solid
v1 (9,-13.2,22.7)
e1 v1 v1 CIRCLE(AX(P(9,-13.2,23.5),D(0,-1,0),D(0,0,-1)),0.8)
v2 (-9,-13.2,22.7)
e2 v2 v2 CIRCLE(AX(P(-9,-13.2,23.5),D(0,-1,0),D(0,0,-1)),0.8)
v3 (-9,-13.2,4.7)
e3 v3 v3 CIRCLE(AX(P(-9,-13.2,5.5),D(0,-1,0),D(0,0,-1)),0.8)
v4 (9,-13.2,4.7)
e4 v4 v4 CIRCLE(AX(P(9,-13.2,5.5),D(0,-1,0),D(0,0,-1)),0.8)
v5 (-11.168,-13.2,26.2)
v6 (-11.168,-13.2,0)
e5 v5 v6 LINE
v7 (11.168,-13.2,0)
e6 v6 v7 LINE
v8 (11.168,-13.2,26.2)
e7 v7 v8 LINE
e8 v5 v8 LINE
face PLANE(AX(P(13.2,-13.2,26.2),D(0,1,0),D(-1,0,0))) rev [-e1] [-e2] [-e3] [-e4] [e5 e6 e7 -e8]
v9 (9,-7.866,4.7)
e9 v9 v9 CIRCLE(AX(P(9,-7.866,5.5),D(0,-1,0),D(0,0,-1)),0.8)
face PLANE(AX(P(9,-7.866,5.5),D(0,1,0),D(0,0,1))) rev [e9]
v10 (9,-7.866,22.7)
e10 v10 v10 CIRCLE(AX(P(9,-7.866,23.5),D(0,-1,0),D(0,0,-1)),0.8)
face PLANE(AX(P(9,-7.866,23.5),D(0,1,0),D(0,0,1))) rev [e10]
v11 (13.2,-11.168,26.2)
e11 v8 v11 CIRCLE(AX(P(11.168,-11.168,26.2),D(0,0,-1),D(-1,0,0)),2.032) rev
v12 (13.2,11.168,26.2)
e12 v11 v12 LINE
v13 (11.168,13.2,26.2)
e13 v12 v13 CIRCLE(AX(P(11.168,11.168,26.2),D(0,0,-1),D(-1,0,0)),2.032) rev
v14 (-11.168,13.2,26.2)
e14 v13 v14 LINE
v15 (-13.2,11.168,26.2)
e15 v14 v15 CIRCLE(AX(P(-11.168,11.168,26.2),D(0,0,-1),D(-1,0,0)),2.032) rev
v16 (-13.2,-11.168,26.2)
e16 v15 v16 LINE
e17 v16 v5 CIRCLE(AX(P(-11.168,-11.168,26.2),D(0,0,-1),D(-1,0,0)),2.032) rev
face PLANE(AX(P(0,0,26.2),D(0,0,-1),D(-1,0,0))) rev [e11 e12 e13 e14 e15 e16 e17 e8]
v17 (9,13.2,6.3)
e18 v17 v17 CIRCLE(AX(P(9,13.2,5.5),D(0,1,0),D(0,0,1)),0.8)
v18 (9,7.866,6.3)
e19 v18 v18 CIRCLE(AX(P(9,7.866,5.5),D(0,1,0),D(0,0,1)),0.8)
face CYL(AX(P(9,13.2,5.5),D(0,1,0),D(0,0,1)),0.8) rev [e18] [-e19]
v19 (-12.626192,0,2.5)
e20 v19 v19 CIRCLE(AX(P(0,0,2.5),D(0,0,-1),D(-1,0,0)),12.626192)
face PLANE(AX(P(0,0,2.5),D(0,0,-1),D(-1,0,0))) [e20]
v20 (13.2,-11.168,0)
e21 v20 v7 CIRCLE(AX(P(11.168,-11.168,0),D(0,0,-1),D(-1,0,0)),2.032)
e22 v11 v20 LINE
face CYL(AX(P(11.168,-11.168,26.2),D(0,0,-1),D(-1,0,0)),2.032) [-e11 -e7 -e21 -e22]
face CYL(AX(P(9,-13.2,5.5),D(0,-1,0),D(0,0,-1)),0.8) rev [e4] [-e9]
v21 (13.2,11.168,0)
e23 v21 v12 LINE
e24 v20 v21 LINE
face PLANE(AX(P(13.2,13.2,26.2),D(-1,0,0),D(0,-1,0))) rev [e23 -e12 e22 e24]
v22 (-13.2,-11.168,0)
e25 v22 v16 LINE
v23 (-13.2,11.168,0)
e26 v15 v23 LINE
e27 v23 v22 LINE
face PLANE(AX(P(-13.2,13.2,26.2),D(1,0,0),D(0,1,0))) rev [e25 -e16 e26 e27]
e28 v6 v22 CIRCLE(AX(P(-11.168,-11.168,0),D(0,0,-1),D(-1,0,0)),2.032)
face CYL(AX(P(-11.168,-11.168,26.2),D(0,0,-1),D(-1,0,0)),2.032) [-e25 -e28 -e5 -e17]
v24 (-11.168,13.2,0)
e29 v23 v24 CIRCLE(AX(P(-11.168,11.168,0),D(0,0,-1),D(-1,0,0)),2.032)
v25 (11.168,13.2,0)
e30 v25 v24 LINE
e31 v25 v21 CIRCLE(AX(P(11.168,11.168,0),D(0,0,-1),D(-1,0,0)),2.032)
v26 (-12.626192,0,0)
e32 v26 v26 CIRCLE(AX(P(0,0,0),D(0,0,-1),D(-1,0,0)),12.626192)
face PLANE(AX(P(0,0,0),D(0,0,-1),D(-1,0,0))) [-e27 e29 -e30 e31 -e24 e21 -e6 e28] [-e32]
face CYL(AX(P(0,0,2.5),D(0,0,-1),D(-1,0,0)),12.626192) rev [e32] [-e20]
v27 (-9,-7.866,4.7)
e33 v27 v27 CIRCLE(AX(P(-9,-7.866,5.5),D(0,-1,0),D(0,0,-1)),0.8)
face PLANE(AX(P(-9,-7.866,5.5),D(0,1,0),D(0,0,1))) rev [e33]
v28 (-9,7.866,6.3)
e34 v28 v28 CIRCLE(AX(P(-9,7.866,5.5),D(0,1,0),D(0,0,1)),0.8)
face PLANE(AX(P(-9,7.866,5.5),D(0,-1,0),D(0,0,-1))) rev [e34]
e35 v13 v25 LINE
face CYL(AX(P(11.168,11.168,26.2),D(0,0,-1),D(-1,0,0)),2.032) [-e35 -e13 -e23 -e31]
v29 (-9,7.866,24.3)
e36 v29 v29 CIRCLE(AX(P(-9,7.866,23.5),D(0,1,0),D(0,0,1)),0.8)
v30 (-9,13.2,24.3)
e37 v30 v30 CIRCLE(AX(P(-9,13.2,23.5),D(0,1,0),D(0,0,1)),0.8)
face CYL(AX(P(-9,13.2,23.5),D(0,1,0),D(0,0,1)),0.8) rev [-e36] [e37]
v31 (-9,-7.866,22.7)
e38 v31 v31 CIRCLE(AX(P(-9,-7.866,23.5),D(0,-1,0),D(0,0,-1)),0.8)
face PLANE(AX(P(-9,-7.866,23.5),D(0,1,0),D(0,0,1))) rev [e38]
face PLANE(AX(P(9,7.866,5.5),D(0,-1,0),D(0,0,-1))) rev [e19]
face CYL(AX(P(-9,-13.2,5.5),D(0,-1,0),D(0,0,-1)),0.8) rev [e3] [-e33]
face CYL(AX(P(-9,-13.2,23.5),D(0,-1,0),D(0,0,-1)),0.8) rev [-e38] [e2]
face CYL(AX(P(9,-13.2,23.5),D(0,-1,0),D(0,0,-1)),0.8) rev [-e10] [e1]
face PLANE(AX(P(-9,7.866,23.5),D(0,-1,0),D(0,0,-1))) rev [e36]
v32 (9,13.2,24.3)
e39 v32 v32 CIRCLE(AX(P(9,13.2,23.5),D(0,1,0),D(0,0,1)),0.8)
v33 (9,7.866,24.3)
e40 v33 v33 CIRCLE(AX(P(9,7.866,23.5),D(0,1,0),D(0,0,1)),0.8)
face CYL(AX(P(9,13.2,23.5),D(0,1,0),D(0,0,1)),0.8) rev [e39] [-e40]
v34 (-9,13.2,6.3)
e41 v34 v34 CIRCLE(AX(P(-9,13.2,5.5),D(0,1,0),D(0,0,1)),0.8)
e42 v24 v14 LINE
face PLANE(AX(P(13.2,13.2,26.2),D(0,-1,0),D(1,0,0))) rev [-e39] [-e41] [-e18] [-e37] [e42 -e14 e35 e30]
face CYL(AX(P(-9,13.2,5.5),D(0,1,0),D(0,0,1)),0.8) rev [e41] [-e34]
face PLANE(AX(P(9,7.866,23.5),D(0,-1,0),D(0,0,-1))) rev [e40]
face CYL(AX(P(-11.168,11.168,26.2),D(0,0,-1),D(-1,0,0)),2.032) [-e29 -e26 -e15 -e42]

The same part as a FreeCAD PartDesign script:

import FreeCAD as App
import Part
import Sketcher
from FreeCAD import Vector
Q = App.Units.Quantity


def edges_at(feature, points):
    """Names of the edges that pass closest to the given points."""
    edges = feature.Shape.Edges
    near = lambda p: min(range(len(edges)), key=lambda i: edges[i].distToShape(Part.Vertex(*p))[0])
    return sorted({f"Edge{near(p) + 1}" for p in points})


def add_polygon(sketch, points):
    """Adds a closed chain of lines whose ends are joined by coincident constraints."""
    first, n = sketch.GeometryCount, len(points)
    for a, b in zip(points, points[1:] + points[:1]):
        sketch.addGeometry(Part.LineSegment(App.Vector(*a, 0), App.Vector(*b, 0)), False)
    for i in range(n):
        sketch.addConstraint(Sketcher.Constraint("Coincident", first + i, 2, first + (i + 1) % n, 1))

doc = App.newDocument("Part")
body = doc.addObject("PartDesign::Body", "Body")

# Sketch on XY plane
sketch1 = body.newObject("Sketcher::SketchObject", "Sketch")
sketch1.AttachmentSupport = (doc.getObject("XY_Plane"), [""])
sketch1.MapMode = "FlatFace"
add_polygon(sketch1, [(-13.2, 13.2), (-13.2, -13.2), (13.2, -13.2), (13.2, 13.2)])  # lines 0-3
sketch1.addConstraint(Sketcher.Constraint("Vertical", 0))
sketch1.addConstraint(Sketcher.Constraint("Horizontal", 1))
sketch1.addConstraint(Sketcher.Constraint("Vertical", 2))
sketch1.addConstraint(Sketcher.Constraint("Horizontal", 3))
sketch1.addConstraint(Sketcher.Constraint("Symmetric", 0, 2, 2, 2, -1, 1))
sketch1.addConstraint(Sketcher.Constraint("Equal", 3, 0))
sketch1.addConstraint(Sketcher.Constraint("DistanceX", 1, 1, 1, 2, Q("26.4 mm")))
pad1 = body.newObject("PartDesign::Pad", "Pad")
pad1.Profile = sketch1
pad1.Length = 26.2
doc.recompute()

fillet = body.newObject("PartDesign::Fillet", "Fillet")
fillet.Base = (pad1, edges_at(pad1, [
    (-13.2, 13.2, 13.1),
    (13.2, 13.2, 13.1),
    (13.2, -13.2, 13.1),
    (-13.2, -13.2, 13.1),
]))
fillet.Radius = 2.032

# Sketch on XY plane
sketch2 = body.newObject("Sketcher::SketchObject", "Sketch001")
sketch2.AttachmentSupport = (doc.getObject("XY_Plane"), [""])
sketch2.MapMode = "FlatFace"
sketch2.addGeometry(Part.Circle(Vector(0, 0, 0), Vector(0, 0, 1), 12.626192), False)
sketch2.addConstraint(Sketcher.Constraint("Coincident", 0, 3, -1, 1))
sketch2.addConstraint(Sketcher.Constraint("Diameter", 0, Q("25.252384 mm")))
pocket1 = body.newObject("PartDesign::Pocket", "Pocket")
pocket1.Profile = sketch2
pocket1.Length = 2.5
pocket1.Reversed = True

# Sketch on XZ plane
sketch3 = body.newObject("Sketcher::SketchObject", "Sketch002")
sketch3.AttachmentSupport = (doc.getObject("XZ_Plane"), [""])
sketch3.MapMode = "FlatFace"
sketch3.AttachmentOffset = App.Placement(Vector(0, 0, 13.2), App.Rotation())
sketch3.addGeometry(Part.Circle(Vector(-9, 23.5, 0), Vector(0, 0, 1), 0.8), False)
sketch3.addGeometry(Part.Circle(Vector(-9, 5.5, 0), Vector(0, 0, 1), 0.8), False)
sketch3.addGeometry(Part.Circle(Vector(9, 5.5, 0), Vector(0, 0, 1), 0.8), False)
sketch3.addGeometry(Part.Circle(Vector(9, 23.5, 0), Vector(0, 0, 1), 0.8), False)
sketch3.addConstraint(Sketcher.Constraint("Equal", 0, 1))
sketch3.addConstraint(Sketcher.Constraint("Equal", 1, 2))
sketch3.addConstraint(Sketcher.Constraint("Equal", 2, 3))
sketch3.addConstraint(Sketcher.Constraint("Symmetric", 1, 3, 2, 3, -2))
sketch3.addConstraint(Sketcher.Constraint("Symmetric", 0, 3, 3, 3, -2))
sketch3.addConstraint(Sketcher.Constraint("Vertical", 0, 3, 1, 3))
sketch3.addConstraint(Sketcher.Constraint("Diameter", 0, Q("1.6 mm")))
sketch3.addConstraint(Sketcher.Constraint("DistanceX", 0, 3, -1, 1, Q("9 mm")))
sketch3.addConstraint(Sketcher.Constraint("DistanceY", 1, 3, 0, 3, Q("18 mm")))
sketch3.addConstraint(Sketcher.Constraint("DistanceY", -1, 1, 0, 3, Q("23.5 mm")))
doc.recompute()
hole = body.newObject("PartDesign::Hole", "Hole")
hole.Profile = sketch3
hole.ThreadType = "None"
hole.Diameter = 1.6
hole.DepthType = "Dimension"
hole.Depth = 5.334
hole.DrillPoint = "Flat"

# Sketch on XZ plane
sketch4 = body.newObject("Sketcher::SketchObject", "Sketch003")
sketch4.AttachmentSupport = (doc.getObject("XZ_Plane"), [""])
sketch4.MapMode = "FlatFace"
sketch4.AttachmentOffset = App.Placement(Vector(0, 0, -13.2), App.Rotation())
sketch4.addGeometry(Part.Circle(Vector(9, 5.5, 0), Vector(0, 0, 1), 0.8), False)
sketch4.addGeometry(Part.Circle(Vector(9, 23.5, 0), Vector(0, 0, 1), 0.8), False)
sketch4.addGeometry(Part.Circle(Vector(-9, 23.5, 0), Vector(0, 0, 1), 0.8), False)
sketch4.addGeometry(Part.Circle(Vector(-9, 5.5, 0), Vector(0, 0, 1), 0.8), False)
sketch4.addConstraint(Sketcher.Constraint("Equal", 0, 1))
sketch4.addConstraint(Sketcher.Constraint("Equal", 1, 2))
sketch4.addConstraint(Sketcher.Constraint("Equal", 2, 3))
sketch4.addConstraint(Sketcher.Constraint("Symmetric", 1, 3, 2, 3, -2))
sketch4.addConstraint(Sketcher.Constraint("Symmetric", 0, 3, 3, 3, -2))
sketch4.addConstraint(Sketcher.Constraint("Vertical", 0, 3, 1, 3))
sketch4.addConstraint(Sketcher.Constraint("Diameter", 0, Q("1.6 mm")))
sketch4.addConstraint(Sketcher.Constraint("DistanceX", -1, 1, 0, 3, Q("9 mm")))
sketch4.addConstraint(Sketcher.Constraint("DistanceY", 0, 3, 1, 3, Q("18 mm")))
sketch4.addConstraint(Sketcher.Constraint("DistanceY", -1, 1, 0, 3, Q("5.5 mm")))
doc.recompute()
hole2 = body.newObject("PartDesign::Hole", "Hole001")
hole2.Profile = sketch4
hole2.ThreadType = "None"
hole2.Diameter = 1.6
hole2.DepthType = "Dimension"
hole2.Depth = 5.334
hole2.DrillPoint = "Flat"
hole2.Reversed = True

doc.recompute()
